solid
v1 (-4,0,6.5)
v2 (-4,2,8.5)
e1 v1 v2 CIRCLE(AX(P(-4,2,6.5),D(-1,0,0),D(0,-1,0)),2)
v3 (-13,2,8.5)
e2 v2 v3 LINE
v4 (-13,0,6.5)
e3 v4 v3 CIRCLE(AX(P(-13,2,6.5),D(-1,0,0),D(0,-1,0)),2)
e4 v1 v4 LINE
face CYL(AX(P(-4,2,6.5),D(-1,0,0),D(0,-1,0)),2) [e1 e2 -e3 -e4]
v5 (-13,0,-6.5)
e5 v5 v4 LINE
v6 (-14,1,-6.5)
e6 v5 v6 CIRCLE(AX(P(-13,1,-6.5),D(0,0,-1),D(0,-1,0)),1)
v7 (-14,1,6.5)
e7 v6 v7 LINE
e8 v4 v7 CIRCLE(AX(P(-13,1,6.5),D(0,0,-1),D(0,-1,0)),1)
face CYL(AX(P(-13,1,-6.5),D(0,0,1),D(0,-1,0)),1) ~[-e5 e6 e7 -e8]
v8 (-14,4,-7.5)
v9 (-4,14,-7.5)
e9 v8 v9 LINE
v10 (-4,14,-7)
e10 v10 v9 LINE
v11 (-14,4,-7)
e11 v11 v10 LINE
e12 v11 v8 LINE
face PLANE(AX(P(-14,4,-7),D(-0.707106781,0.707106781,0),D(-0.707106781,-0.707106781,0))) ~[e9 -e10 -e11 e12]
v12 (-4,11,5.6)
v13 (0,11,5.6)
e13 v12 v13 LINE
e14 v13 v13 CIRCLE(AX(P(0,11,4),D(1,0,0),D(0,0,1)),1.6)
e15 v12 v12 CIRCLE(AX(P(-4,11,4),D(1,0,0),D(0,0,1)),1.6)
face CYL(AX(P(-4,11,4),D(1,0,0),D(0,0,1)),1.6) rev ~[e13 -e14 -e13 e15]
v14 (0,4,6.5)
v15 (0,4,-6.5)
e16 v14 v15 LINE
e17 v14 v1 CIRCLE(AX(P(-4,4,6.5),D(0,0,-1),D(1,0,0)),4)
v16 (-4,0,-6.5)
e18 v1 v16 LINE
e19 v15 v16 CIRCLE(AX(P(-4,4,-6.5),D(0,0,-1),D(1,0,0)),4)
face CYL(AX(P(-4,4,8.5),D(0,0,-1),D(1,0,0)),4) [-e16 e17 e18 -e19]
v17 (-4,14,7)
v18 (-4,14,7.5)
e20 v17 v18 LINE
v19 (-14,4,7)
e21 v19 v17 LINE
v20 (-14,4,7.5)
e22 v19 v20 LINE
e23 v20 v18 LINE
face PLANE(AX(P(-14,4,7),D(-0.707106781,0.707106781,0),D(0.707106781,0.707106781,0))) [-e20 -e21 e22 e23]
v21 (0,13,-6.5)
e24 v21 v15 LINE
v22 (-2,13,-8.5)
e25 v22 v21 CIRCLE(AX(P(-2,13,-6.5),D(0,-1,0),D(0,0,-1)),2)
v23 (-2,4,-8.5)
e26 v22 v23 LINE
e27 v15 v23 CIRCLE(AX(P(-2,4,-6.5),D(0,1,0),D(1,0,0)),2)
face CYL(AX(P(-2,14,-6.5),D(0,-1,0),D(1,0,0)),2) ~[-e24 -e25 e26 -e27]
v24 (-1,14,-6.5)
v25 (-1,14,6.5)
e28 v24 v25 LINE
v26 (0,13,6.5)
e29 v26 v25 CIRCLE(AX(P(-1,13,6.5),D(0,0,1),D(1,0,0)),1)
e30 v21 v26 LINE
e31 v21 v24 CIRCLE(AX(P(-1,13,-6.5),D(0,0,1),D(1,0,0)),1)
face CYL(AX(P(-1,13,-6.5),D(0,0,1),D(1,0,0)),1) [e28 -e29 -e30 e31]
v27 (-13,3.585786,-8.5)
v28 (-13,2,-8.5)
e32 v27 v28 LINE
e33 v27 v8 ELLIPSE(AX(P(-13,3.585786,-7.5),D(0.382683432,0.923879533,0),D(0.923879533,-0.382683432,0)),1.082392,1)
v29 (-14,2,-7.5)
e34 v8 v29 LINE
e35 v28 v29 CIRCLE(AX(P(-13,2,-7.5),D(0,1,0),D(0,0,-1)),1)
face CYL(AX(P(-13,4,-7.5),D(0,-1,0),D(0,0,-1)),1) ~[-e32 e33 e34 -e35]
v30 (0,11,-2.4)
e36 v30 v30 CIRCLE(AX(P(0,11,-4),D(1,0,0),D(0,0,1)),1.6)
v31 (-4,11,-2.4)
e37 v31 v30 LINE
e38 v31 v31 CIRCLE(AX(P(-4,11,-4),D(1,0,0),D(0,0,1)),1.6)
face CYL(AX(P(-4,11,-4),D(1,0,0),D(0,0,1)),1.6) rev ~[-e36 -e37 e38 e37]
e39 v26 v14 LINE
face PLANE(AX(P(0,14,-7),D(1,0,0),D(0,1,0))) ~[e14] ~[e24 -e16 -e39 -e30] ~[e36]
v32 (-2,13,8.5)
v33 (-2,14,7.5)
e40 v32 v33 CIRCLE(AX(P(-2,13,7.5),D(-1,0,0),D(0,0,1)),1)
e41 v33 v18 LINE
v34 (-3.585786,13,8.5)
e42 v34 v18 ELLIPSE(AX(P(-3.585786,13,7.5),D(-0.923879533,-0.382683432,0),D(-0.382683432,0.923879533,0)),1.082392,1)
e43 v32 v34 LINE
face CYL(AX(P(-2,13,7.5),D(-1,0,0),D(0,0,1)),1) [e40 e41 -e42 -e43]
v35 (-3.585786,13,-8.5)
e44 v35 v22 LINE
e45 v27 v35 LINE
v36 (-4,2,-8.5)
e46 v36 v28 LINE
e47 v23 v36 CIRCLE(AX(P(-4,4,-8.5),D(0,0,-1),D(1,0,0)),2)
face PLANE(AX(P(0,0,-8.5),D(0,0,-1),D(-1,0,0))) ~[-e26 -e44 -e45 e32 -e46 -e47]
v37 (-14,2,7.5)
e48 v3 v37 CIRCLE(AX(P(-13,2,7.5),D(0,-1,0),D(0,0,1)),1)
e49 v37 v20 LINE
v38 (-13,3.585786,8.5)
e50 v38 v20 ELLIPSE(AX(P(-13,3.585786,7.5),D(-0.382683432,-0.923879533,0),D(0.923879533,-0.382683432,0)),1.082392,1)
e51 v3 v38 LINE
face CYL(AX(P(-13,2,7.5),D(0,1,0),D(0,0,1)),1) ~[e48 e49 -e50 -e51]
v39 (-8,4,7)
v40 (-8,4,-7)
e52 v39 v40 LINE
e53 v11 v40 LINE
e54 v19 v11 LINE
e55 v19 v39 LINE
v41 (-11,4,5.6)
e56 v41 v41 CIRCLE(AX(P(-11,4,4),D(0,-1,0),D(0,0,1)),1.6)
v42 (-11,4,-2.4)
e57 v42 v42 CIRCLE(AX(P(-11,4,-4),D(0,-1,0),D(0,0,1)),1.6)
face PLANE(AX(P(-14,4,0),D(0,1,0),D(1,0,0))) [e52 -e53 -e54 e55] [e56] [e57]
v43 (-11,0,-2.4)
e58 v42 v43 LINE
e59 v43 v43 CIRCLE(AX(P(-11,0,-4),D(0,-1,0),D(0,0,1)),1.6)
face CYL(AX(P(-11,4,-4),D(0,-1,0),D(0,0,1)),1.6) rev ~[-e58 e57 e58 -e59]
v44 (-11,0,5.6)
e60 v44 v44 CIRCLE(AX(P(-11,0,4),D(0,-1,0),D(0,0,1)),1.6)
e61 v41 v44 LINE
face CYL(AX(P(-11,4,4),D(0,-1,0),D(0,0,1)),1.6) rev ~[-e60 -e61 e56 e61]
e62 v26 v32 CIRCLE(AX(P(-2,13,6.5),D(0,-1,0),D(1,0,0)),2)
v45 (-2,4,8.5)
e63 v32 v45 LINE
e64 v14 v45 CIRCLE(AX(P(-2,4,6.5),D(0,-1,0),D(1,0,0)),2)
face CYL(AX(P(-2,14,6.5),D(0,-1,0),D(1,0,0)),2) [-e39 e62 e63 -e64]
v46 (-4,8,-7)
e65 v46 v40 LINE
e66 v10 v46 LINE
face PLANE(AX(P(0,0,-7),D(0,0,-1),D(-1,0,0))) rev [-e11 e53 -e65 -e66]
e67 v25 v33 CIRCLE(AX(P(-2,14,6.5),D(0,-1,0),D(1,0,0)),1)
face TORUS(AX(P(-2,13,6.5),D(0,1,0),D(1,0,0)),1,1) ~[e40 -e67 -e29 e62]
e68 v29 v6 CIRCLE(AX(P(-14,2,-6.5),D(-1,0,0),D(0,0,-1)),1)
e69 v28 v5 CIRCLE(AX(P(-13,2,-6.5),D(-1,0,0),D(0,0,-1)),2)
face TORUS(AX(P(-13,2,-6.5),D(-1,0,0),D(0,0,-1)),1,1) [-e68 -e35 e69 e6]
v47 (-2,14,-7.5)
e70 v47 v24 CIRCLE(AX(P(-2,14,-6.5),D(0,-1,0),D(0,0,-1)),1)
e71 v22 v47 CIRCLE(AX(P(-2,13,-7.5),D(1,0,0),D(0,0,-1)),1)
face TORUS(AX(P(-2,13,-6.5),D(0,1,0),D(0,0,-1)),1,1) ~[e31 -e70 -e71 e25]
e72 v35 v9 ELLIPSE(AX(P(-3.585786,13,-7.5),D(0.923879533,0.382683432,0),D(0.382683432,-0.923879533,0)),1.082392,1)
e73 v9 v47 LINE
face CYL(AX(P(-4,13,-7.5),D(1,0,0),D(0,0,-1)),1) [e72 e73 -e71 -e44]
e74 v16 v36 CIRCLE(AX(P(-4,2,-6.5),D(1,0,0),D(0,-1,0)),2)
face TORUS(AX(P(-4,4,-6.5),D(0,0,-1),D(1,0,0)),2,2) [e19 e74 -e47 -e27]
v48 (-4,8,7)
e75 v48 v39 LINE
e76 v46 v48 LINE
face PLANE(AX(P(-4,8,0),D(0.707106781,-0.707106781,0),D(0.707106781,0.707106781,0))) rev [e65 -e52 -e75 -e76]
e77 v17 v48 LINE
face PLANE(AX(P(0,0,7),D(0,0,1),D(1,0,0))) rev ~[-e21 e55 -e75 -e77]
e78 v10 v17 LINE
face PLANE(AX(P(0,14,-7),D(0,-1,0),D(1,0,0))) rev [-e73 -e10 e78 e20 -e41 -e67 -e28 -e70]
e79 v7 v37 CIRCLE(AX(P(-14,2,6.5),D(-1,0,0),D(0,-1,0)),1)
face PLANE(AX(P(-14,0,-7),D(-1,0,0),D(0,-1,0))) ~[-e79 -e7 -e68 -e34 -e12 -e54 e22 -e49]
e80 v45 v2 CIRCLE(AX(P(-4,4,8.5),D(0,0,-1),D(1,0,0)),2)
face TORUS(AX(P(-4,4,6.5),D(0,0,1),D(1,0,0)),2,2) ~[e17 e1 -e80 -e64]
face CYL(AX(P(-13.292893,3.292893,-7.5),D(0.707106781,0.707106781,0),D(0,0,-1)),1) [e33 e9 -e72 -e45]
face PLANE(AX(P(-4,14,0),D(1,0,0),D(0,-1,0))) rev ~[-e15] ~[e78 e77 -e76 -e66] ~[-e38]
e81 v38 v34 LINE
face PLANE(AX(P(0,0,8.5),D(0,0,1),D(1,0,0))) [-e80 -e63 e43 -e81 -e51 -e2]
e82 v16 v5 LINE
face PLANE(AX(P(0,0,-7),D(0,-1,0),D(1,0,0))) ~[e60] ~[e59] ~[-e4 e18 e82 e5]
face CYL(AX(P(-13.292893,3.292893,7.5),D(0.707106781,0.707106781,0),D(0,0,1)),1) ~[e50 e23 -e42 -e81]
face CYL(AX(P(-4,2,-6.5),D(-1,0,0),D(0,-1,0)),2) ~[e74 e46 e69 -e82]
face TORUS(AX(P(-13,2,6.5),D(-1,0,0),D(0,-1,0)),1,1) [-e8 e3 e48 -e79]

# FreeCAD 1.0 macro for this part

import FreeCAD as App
import Part
import Sketcher
from FreeCAD import Vector
Q = App.Units.Quantity


def edges_at(feature, points):
    """Names of the edges that pass closest to the given points."""
    edges = feature.Shape.Edges
    near = lambda p: min(range(len(edges)), key=lambda i: edges[i].distToShape(Part.Vertex(*p))[0])
    return sorted({f"Edge{near(p) + 1}" for p in points})

doc = App.newDocument("Part")
body = doc.addObject("PartDesign::Body", "Body")

sketch1 = doc.addObject("Sketcher::SketchObject", "Sketch")
body.addObject(sketch1)
sketch1.AttachmentSupport = (doc.XY_Plane, [""])
sketch1.MapMode = "FlatFace"
sketch1.addGeometry(Part.LineSegment(Vector(0, 0, 0), Vector(0, 14, 0)), False)
sketch1.addGeometry(Part.LineSegment(Vector(0, 14, 0), Vector(-4, 14, 0)), False)
sketch1.addGeometry(Part.LineSegment(Vector(-4, 14, 0), Vector(-4, 8, 0)), False)
sketch1.addGeometry(Part.LineSegment(Vector(-4, 8, 0), Vector(-8, 4, 0)), False)
sketch1.addGeometry(Part.LineSegment(Vector(-8, 4, 0), Vector(-14, 4, 0)), False)
sketch1.addGeometry(Part.LineSegment(Vector(-14, 4, 0), Vector(-14, 0, 0)), False)
sketch1.addGeometry(Part.LineSegment(Vector(-14, 0, 0), Vector(0, 0, 0)), False)
sketch1.addConstraint(Sketcher.Constraint("Coincident", 0, 2, 1, 1))
sketch1.addConstraint(Sketcher.Constraint("Coincident", 1, 2, 2, 1))
sketch1.addConstraint(Sketcher.Constraint("Coincident", 2, 2, 3, 1))
sketch1.addConstraint(Sketcher.Constraint("Coincident", 3, 2, 4, 1))
sketch1.addConstraint(Sketcher.Constraint("Coincident", 4, 2, 5, 1))
sketch1.addConstraint(Sketcher.Constraint("Coincident", 5, 2, 6, 1))
sketch1.addConstraint(Sketcher.Constraint("Coincident", 6, 2, 0, 1))
sketch1.addConstraint(Sketcher.Constraint("Vertical", 0))
sketch1.addConstraint(Sketcher.Constraint("Horizontal", 1))
sketch1.addConstraint(Sketcher.Constraint("Vertical", 2))
sketch1.addConstraint(Sketcher.Constraint("Horizontal", 4))
sketch1.addConstraint(Sketcher.Constraint("Vertical", 5))
sketch1.addConstraint(Sketcher.Constraint("Horizontal", 6))
sketch1.addConstraint(Sketcher.Constraint("Coincident", 6, 2, -1, 1))
sketch1.addConstraint(Sketcher.Constraint("Equal", 6, 0))
sketch1.addConstraint(Sketcher.Constraint("Equal", 4, 2))
sketch1.addConstraint(Sketcher.Constraint("Equal", 1, 5))
sketch1.addConstraint(Sketcher.Constraint("DistanceX", 1, 2, 1, 1, Q("4 mm")))
sketch1.addConstraint(Sketcher.Constraint("DistanceX", 4, 2, 4, 1, Q("6 mm")))
sketch1.addConstraint(Sketcher.Constraint("DistanceX", 6, 1, 6, 2, Q("14 mm")))
pad1 = doc.addObject("PartDesign::Pad", "Pad")
body.addObject(pad1)
pad1.Profile = sketch1
pad1.Length = 7

sketch2 = doc.addObject("Sketcher::SketchObject", "Sketch001")
body.addObject(sketch2)
sketch2.AttachmentSupport = (doc.XY_Plane, [""])
sketch2.MapMode = "FlatFace"
sketch2.AttachmentOffset = App.Placement(Vector(0, 0, 7), App.Rotation())
sketch2.addGeometry(Part.LineSegment(Vector(0, 0, 0), Vector(0, 14, 0)), False)
sketch2.addGeometry(Part.LineSegment(Vector(0, 14, 0), Vector(-4, 14, 0)), False)
sketch2.addGeometry(Part.LineSegment(Vector(-4, 14, 0), Vector(-14, 4, 0)), False)
sketch2.addGeometry(Part.LineSegment(Vector(-14, 4, 0), Vector(-14, 0, 0)), False)
sketch2.addGeometry(Part.LineSegment(Vector(-14, 0, 0), Vector(0, 0, 0)), False)
sketch2.addConstraint(Sketcher.Constraint("Coincident", 0, 2, 1, 1))
sketch2.addConstraint(Sketcher.Constraint("Coincident", 1, 2, 2, 1))
sketch2.addConstraint(Sketcher.Constraint("Coincident", 2, 2, 3, 1))
sketch2.addConstraint(Sketcher.Constraint("Coincident", 3, 2, 4, 1))
sketch2.addConstraint(Sketcher.Constraint("Coincident", 4, 2, 0, 1))
sketch2.addConstraint(Sketcher.Constraint("Vertical", 0))
sketch2.addConstraint(Sketcher.Constraint("Horizontal", 1))
sketch2.addConstraint(Sketcher.Constraint("Vertical", 3))
sketch2.addConstraint(Sketcher.Constraint("Horizontal", 4))
sketch2.addConstraint(Sketcher.Constraint("Coincident", 4, 2, -1, 1))
sketch2.addConstraint(Sketcher.Constraint("Equal", 4, 0))
sketch2.addConstraint(Sketcher.Constraint("Equal", 1, 3))
sketch2.addConstraint(Sketcher.Constraint("DistanceX", 1, 2, 1, 1, Q("4 mm")))
sketch2.addConstraint(Sketcher.Constraint("DistanceX", 4, 1, 4, 2, Q("14 mm")))
pad2 = doc.addObject("PartDesign::Pad", "Pad001")
body.addObject(pad2)
pad2.Profile = sketch2
pad2.Length = 1.5
doc.recompute()

mirrored = doc.addObject("PartDesign::Mirrored", "Mirrored")
body.addObject(mirrored)
mirrored.Originals = [pad1, pad2]
mirrored.MirrorPlane = (doc.XY_Plane, [""])
body.Tip = mirrored

sketch3 = doc.addObject("Sketcher::SketchObject", "Sketch002")
body.addObject(sketch3)
sketch3.AttachmentSupport = (doc.YZ_Plane, [""])
sketch3.MapMode = "FlatFace"
sketch3.AttachmentOffset = App.Placement(Vector(0, 0, -4), App.Rotation())
sketch3.addGeometry(Part.Circle(Vector(11, -4, 0), Vector(0, 0, 1), 1.6), False)
sketch3.addGeometry(Part.Circle(Vector(11, 4, 0), Vector(0, 0, 1), 1.6), False)
sketch3.addConstraint(Sketcher.Constraint("Equal", 0, 1))
sketch3.addConstraint(Sketcher.Constraint("Symmetric", 0, 3, 1, 3, -1))
sketch3.addConstraint(Sketcher.Constraint("Diameter", 0, Q("3.2 mm")))
sketch3.addConstraint(Sketcher.Constraint("DistanceX", -1, 1, 0, 3, Q("11 mm")))
sketch3.addConstraint(Sketcher.Constraint("DistanceY", 0, 3, -1, 1, Q("4 mm")))
doc.recompute()
hole = doc.addObject("PartDesign::Hole", "Hole")
body.addObject(hole)
hole.Profile = sketch3
hole.ThreadType = "None"
hole.Diameter = 3.2
hole.DepthType = "Dimension"
hole.Depth = 20
hole.DrillPoint = "Angled"
hole.DrillPointAngle = 118
hole.Reversed = True

sketch4 = doc.addObject("Sketcher::SketchObject", "Sketch003")
body.addObject(sketch4)
sketch4.AttachmentSupport = (doc.XZ_Plane, [""])
sketch4.MapMode = "FlatFace"
sketch4.AttachmentOffset = App.Placement(Vector(0, 0, -4), App.Rotation())
sketch4.addGeometry(Part.Circle(Vector(-11, -4, 0), Vector(0, 0, 1), 1.6), False)
sketch4.addGeometry(Part.Circle(Vector(-11, 4, 0), Vector(0, 0, 1), 1.6), False)
sketch4.addConstraint(Sketcher.Constraint("Equal", 0, 1))
sketch4.addConstraint(Sketcher.Constraint("Symmetric", 0, 3, 1, 3, -1))
sketch4.addConstraint(Sketcher.Constraint("Diameter", 0, Q("3.2 mm")))
sketch4.addConstraint(Sketcher.Constraint("DistanceX", 0, 3, -1, 1, Q("11 mm")))
sketch4.addConstraint(Sketcher.Constraint("DistanceY", 0, 3, -1, 1, Q("4 mm")))
doc.recompute()
hole2 = doc.addObject("PartDesign::Hole", "Hole001")
body.addObject(hole2)
hole2.Profile = sketch4
hole2.ThreadType = "None"
hole2.Diameter = 3.2
hole2.DepthType = "Dimension"
hole2.Depth = 20
hole2.DrillPoint = "Angled"
hole2.DrillPointAngle = 118
hole2.Reversed = True
doc.recompute()

fillet = doc.addObject("PartDesign::Fillet", "Fillet")
body.addObject(fillet)
fillet.Base = (hole2, edges_at(hole2, [(0, 0, 0)]))
fillet.Radius = 4
doc.recompute()

fillet2 = doc.addObject("PartDesign::Fillet", "Fillet001")
body.addObject(fillet2)
fillet2.Base = (fillet, edges_at(fillet, [
    (-1.172, 1.172, 8.5),
    (0, 9, 8.5),
    (-9, 0, 8.5),
    (0, 9, -8.5),
    (-9, 0, -8.5),
    (-1.172, 1.172, -8.5),
]))
fillet2.Radius = 2
doc.recompute()

fillet3 = doc.addObject("PartDesign::Fillet", "Fillet002")
body.addObject(fillet3)
fillet3.Base = (fillet2, edges_at(fillet2, [
    (-0.586, 14, 7.914),
    (-3, 14, 8.5),
    (-0.586, 14, -7.914),
    (-3, 14, -8.5),
    (0, 14, 0),
    (-9, 9, 8.5),
    (-9, 9, -8.5),
    (-14, 0.586, 7.914),
    (-14, 3, 8.5),
    (-14, 0.586, -7.914),
    (-14, 3, -8.5),
    (-14, 0, 0),
]))
fillet3.Radius = 1

doc.recompute()
